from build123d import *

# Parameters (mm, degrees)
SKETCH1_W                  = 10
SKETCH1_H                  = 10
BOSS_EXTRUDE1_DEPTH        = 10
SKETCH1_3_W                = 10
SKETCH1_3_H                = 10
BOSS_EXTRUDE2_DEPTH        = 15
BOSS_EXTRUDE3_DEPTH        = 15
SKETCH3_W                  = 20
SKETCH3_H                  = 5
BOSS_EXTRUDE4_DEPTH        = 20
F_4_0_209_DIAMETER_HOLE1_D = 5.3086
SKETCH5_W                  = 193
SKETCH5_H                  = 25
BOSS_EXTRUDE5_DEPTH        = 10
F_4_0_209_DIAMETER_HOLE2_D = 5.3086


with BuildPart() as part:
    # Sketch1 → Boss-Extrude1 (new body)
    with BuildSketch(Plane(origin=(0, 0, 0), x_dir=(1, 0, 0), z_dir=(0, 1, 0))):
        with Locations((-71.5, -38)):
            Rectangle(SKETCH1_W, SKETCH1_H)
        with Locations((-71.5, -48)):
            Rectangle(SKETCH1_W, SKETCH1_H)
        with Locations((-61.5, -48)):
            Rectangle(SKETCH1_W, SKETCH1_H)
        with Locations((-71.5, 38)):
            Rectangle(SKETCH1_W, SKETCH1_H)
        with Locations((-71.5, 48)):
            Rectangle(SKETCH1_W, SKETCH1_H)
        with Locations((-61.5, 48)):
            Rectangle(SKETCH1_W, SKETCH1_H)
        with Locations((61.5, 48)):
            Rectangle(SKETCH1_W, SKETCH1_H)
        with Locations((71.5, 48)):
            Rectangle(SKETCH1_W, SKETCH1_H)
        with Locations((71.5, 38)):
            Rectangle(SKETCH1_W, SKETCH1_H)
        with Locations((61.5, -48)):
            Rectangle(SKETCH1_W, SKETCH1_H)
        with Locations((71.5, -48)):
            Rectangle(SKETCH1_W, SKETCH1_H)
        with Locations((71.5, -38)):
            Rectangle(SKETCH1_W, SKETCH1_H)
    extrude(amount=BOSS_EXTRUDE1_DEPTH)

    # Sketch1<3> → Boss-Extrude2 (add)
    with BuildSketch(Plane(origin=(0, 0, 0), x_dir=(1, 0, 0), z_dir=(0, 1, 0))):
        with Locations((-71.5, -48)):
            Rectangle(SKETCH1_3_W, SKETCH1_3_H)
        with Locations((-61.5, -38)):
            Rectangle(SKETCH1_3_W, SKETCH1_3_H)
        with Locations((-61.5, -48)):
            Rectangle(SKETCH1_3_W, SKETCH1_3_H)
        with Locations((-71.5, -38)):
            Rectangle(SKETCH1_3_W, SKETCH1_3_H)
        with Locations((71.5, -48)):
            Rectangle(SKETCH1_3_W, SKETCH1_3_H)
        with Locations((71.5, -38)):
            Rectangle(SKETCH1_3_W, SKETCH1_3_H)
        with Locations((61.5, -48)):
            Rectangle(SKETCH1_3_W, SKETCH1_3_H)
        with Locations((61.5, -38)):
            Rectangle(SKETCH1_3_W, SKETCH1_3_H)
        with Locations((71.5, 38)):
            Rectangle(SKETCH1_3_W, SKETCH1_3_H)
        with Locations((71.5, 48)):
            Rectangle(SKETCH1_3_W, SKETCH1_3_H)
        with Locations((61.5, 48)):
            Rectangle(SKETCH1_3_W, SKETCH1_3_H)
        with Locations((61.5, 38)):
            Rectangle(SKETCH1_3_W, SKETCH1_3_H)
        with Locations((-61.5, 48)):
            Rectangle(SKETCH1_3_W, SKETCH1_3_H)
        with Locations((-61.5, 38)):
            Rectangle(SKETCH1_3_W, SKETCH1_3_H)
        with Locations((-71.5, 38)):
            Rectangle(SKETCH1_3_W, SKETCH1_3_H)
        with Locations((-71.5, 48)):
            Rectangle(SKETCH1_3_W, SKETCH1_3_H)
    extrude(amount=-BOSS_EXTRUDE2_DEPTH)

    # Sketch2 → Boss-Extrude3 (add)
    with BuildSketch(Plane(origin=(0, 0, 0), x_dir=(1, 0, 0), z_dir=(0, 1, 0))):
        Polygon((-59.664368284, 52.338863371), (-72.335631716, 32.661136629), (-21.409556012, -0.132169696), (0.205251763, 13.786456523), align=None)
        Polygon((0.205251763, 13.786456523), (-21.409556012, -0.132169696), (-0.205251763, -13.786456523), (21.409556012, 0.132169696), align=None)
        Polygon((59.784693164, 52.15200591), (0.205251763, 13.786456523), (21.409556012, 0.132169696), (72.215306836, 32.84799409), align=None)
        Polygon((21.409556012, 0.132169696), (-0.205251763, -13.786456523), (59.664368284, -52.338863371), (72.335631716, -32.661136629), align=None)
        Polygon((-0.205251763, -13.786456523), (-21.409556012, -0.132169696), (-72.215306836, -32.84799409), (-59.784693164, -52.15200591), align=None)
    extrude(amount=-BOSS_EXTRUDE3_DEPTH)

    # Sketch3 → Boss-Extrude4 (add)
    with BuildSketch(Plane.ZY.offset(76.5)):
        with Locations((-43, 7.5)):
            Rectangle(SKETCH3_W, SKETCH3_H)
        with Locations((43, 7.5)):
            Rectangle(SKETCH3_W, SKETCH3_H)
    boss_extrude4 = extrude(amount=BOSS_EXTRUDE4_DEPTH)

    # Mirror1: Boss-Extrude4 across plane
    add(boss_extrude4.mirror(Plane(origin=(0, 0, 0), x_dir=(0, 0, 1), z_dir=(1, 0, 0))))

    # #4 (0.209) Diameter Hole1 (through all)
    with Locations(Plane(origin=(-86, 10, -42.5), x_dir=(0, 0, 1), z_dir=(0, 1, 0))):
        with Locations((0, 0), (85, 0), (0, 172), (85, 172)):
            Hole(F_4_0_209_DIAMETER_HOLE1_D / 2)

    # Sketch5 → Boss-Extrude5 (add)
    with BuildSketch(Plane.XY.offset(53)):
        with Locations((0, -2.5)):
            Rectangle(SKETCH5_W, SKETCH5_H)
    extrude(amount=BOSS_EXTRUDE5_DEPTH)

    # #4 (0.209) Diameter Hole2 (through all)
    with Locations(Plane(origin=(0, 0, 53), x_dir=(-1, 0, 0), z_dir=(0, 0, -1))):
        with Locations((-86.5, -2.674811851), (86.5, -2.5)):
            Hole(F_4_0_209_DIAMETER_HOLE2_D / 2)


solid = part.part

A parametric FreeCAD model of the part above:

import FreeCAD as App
import Part
import Sketcher
from FreeCAD import Vector

doc = App.newDocument("Part")
body = doc.addObject("PartDesign::Body", "Body")
body.AllowCompound = True

# Sketch on XZ plane
sketch1 = body.newObject("Sketcher::SketchObject", "Sketch")
sketch1.AttachmentSupport = (doc.getObject("XZ_Plane"), [""])
sketch1.MapMode = "FlatFace"
sketch1.addGeometry(Part.LineSegment(Vector(-76, 33, 0), Vector(-76, 53, 0)), False)
sketch1.addGeometry(Part.LineSegment(Vector(-76, 53, 0), Vector(-56, 53, 0)), False)
sketch1.addGeometry(Part.LineSegment(Vector(-56, 53, 0), Vector(-56, 43, 0)), False)
sketch1.addGeometry(Part.LineSegment(Vector(-56, 43, 0), Vector(-66, 43, 0)), False)
sketch1.addGeometry(Part.LineSegment(Vector(-66, 43, 0), Vector(-66, 33, 0)), False)
sketch1.addGeometry(Part.LineSegment(Vector(-66, 33, 0), Vector(-76, 33, 0)), False)
sketch1.addGeometry(Part.LineSegment(Vector(-76, -33, 0), Vector(-66, -33, 0)), False)
sketch1.addGeometry(Part.LineSegment(Vector(-66, -33, 0), Vector(-66, -43, 0)), False)
sketch1.addGeometry(Part.LineSegment(Vector(-66, -43, 0), Vector(-56, -43, 0)), False)
sketch1.addGeometry(Part.LineSegment(Vector(-56, -43, 0), Vector(-56, -53, 0)), False)
sketch1.addGeometry(Part.LineSegment(Vector(-56, -53, 0), Vector(-76, -53, 0)), False)
sketch1.addGeometry(Part.LineSegment(Vector(-76, -53, 0), Vector(-76, -33, 0)), False)
sketch1.addGeometry(Part.LineSegment(Vector(56, -53, 0), Vector(56, -43, 0)), False)
sketch1.addGeometry(Part.LineSegment(Vector(56, -43, 0), Vector(66, -43, 0)), False)
sketch1.addGeometry(Part.LineSegment(Vector(66, -43, 0), Vector(66, -33, 0)), False)
sketch1.addGeometry(Part.LineSegment(Vector(66, -33, 0), Vector(76, -33, 0)), False)
sketch1.addGeometry(Part.LineSegment(Vector(76, -33, 0), Vector(76, -53, 0)), False)
sketch1.addGeometry(Part.LineSegment(Vector(76, -53, 0), Vector(56, -53, 0)), False)
sketch1.addGeometry(Part.LineSegment(Vector(56, 43, 0), Vector(56, 53, 0)), False)
sketch1.addGeometry(Part.LineSegment(Vector(56, 53, 0), Vector(76, 53, 0)), False)
sketch1.addGeometry(Part.LineSegment(Vector(76, 53, 0), Vector(76, 33, 0)), False)
sketch1.addGeometry(Part.LineSegment(Vector(76, 33, 0), Vector(66, 33, 0)), False)
sketch1.addGeometry(Part.LineSegment(Vector(66, 33, 0), Vector(66, 43, 0)), False)
sketch1.addGeometry(Part.LineSegment(Vector(66, 43, 0), Vector(56, 43, 0)), False)
sketch1.addConstraint(Sketcher.Constraint("Coincident", 0, 2, 1, 1))
sketch1.addConstraint(Sketcher.Constraint("Coincident", 1, 2, 2, 1))
sketch1.addConstraint(Sketcher.Constraint("Coincident", 2, 2, 3, 1))
sketch1.addConstraint(Sketcher.Constraint("Coincident", 3, 2, 4, 1))
sketch1.addConstraint(Sketcher.Constraint("Coincident", 4, 2, 5, 1))
sketch1.addConstraint(Sketcher.Constraint("Coincident", 5, 2, 0, 1))
sketch1.addConstraint(Sketcher.Constraint("Coincident", 6, 2, 7, 1))
sketch1.addConstraint(Sketcher.Constraint("Coincident", 7, 2, 8, 1))
sketch1.addConstraint(Sketcher.Constraint("Coincident", 8, 2, 9, 1))
sketch1.addConstraint(Sketcher.Constraint("Coincident", 9, 2, 10, 1))
sketch1.addConstraint(Sketcher.Constraint("Coincident", 10, 2, 11, 1))
sketch1.addConstraint(Sketcher.Constraint("Coincident", 11, 2, 6, 1))
sketch1.addConstraint(Sketcher.Constraint("Coincident", 12, 2, 13, 1))
sketch1.addConstraint(Sketcher.Constraint("Coincident", 13, 2, 14, 1))
sketch1.addConstraint(Sketcher.Constraint("Coincident", 14, 2, 15, 1))
sketch1.addConstraint(Sketcher.Constraint("Coincident", 15, 2, 16, 1))
sketch1.addConstraint(Sketcher.Constraint("Coincident", 16, 2, 17, 1))
sketch1.addConstraint(Sketcher.Constraint("Coincident", 17, 2, 12, 1))
sketch1.addConstraint(Sketcher.Constraint("Coincident", 18, 2, 19, 1))
sketch1.addConstraint(Sketcher.Constraint("Coincident", 19, 2, 20, 1))
sketch1.addConstraint(Sketcher.Constraint("Coincident", 20, 2, 21, 1))
sketch1.addConstraint(Sketcher.Constraint("Coincident", 21, 2, 22, 1))
sketch1.addConstraint(Sketcher.Constraint("Coincident", 22, 2, 23, 1))
sketch1.addConstraint(Sketcher.Constraint("Coincident", 23, 2, 18, 1))
sketch1.addConstraint(Sketcher.Constraint("Vertical", 0))
sketch1.addConstraint(Sketcher.Constraint("Horizontal", 1))
sketch1.addConstraint(Sketcher.Constraint("Vertical", 2))
sketch1.addConstraint(Sketcher.Constraint("Horizontal", 3))
sketch1.addConstraint(Sketcher.Constraint("Vertical", 4))
sketch1.addConstraint(Sketcher.Constraint("Horizontal", 5))
sketch1.addConstraint(Sketcher.Constraint("Horizontal", 6))
sketch1.addConstraint(Sketcher.Constraint("Vertical", 7))
sketch1.addConstraint(Sketcher.Constraint("Horizontal", 8))
sketch1.addConstraint(Sketcher.Constraint("Vertical", 9))
sketch1.addConstraint(Sketcher.Constraint("Horizontal", 10))
sketch1.addConstraint(Sketcher.Constraint("Vertical", 11))
sketch1.addConstraint(Sketcher.Constraint("Vertical", 12))
sketch1.addConstraint(Sketcher.Constraint("Horizontal", 13))
sketch1.addConstraint(Sketcher.Constraint("Vertical", 14))
sketch1.addConstraint(Sketcher.Constraint("Horizontal", 15))
sketch1.addConstraint(Sketcher.Constraint("Vertical", 16))
sketch1.addConstraint(Sketcher.Constraint("Horizontal", 17))
sketch1.addConstraint(Sketcher.Constraint("Vertical", 18))
sketch1.addConstraint(Sketcher.Constraint("Horizontal", 19))
sketch1.addConstraint(Sketcher.Constraint("Vertical", 20))
sketch1.addConstraint(Sketcher.Constraint("Horizontal", 21))
sketch1.addConstraint(Sketcher.Constraint("Vertical", 22))
sketch1.addConstraint(Sketcher.Constraint("Horizontal", 23))
sketch1.addConstraint(Sketcher.Constraint("Symmetric", 2, 2, 12, 2, -1, 1))
sketch1.addConstraint(Sketcher.Constraint("Symmetric", 4, 2, 14, 2, -1, 1))
sketch1.addConstraint(Sketcher.Constraint("Symmetric", 0, 2, 16, 2, -1, 1))
sketch1.addConstraint(Sketcher.Constraint("Symmetric", 9, 2, 18, 2, -1, 1))
sketch1.addConstraint(Sketcher.Constraint("Symmetric", 11, 2, 20, 2, -1, 1))
sketch1.addConstraint(Sketcher.Constraint("Symmetric", 7, 2, 22, 2, -1, 1))
sketch1.addConstraint(Sketcher.Constraint("Symmetric", 8, 2, 12, 2, -2))
sketch1.addConstraint(Sketcher.Constraint("Symmetric", 6, 2, 14, 2, -2))
sketch1.addConstraint(Sketcher.Constraint("Symmetric", 10, 2, 16, 2, -2))
sketch1.addConstraint(Sketcher.Constraint("Equal", 3, 5))
sketch1.addConstraint(Sketcher.Constraint("Equal", 19, 0))
sketch1.addConstraint(Sketcher.Constraint("Equal", 23, 2))
sketch1.addConstraint(Sketcher.Constraint("DistanceX", 1, 1, 1, 2, 20.0))
sketch1.addConstraint(Sketcher.Constraint("DistanceY", -1, 1, 0, 2, 53.0))
sketch1.addConstraint(Sketcher.Constraint("DistanceX", 8, 2, 12, 2, 113.0))
pad1 = body.newObject("PartDesign::Pad", "Pad")
pad1.Profile = sketch1
pad1.Length = 10
pad1.Reversed = True

# Sketch on XZ plane
sketch2 = body.newObject("Sketcher::SketchObject", "Sketch001")
sketch2.AttachmentSupport = (doc.getObject("XZ_Plane"), [""])
sketch2.MapMode = "FlatFace"
sketch2.addGeometry(Part.LineSegment(Vector(-76, 53, 0), Vector(-56, 53, 0)), False)
sketch2.addGeometry(Part.LineSegment(Vector(-56, 53, 0), Vector(-56, 33, 0)), False)
sketch2.addGeometry(Part.LineSegment(Vector(-56, 33, 0), Vector(-76, 33, 0)), False)
sketch2.addGeometry(Part.LineSegment(Vector(-76, 33, 0), Vector(-76, 53, 0)), False)
sketch2.addGeometry(Part.LineSegment(Vector(76, 53, 0), Vector(76, 33, 0)), False)
sketch2.addGeometry(Part.LineSegment(Vector(76, 33, 0), Vector(56, 33, 0)), False)
sketch2.addGeometry(Part.LineSegment(Vector(56, 33, 0), Vector(56, 53, 0)), False)
sketch2.addGeometry(Part.LineSegment(Vector(56, 53, 0), Vector(76, 53, 0)), False)
sketch2.addGeometry(Part.LineSegment(Vector(76, -33, 0), Vector(76, -53, 0)), False)
sketch2.addGeometry(Part.LineSegment(Vector(76, -53, 0), Vector(56, -53, 0)), False)
sketch2.addGeometry(Part.LineSegment(Vector(56, -53, 0), Vector(56, -33, 0)), False)
sketch2.addGeometry(Part.LineSegment(Vector(56, -33, 0), Vector(76, -33, 0)), False)
sketch2.addGeometry(Part.LineSegment(Vector(-76, -33, 0), Vector(-56, -33, 0)), False)
sketch2.addGeometry(Part.LineSegment(Vector(-56, -33, 0), Vector(-56, -53, 0)), False)
sketch2.addGeometry(Part.LineSegment(Vector(-56, -53, 0), Vector(-76, -53, 0)), False)
sketch2.addGeometry(Part.LineSegment(Vector(-76, -53, 0), Vector(-76, -33, 0)), False)
sketch2.addConstraint(Sketcher.Constraint("Coincident", 0, 2, 1, 1))
sketch2.addConstraint(Sketcher.Constraint("Coincident", 1, 2, 2, 1))
sketch2.addConstraint(Sketcher.Constraint("Coincident", 2, 2, 3, 1))
sketch2.addConstraint(Sketcher.Constraint("Coincident", 3, 2, 0, 1))
sketch2.addConstraint(Sketcher.Constraint("Coincident", 4, 2, 5, 1))
sketch2.addConstraint(Sketcher.Constraint("Coincident", 5, 2, 6, 1))
sketch2.addConstraint(Sketcher.Constraint("Coincident", 6, 2, 7, 1))
sketch2.addConstraint(Sketcher.Constraint("Coincident", 7, 2, 4, 1))
sketch2.addConstraint(Sketcher.Constraint("Coincident", 8, 2, 9, 1))
sketch2.addConstraint(Sketcher.Constraint("Coincident", 9, 2, 10, 1))
sketch2.addConstraint(Sketcher.Constraint("Coincident", 10, 2, 11, 1))
sketch2.addConstraint(Sketcher.Constraint("Coincident", 11, 2, 8, 1))
sketch2.addConstraint(Sketcher.Constraint("Coincident", 12, 2, 13, 1))
sketch2.addConstraint(Sketcher.Constraint("Coincident", 13, 2, 14, 1))
sketch2.addConstraint(Sketcher.Constraint("Coincident", 14, 2, 15, 1))
sketch2.addConstraint(Sketcher.Constraint("Coincident", 15, 2, 12, 1))
sketch2.addConstraint(Sketcher.Constraint("Horizontal", 0))
sketch2.addConstraint(Sketcher.Constraint("Vertical", 1))
sketch2.addConstraint(Sketcher.Constraint("Horizontal", 2))
sketch2.addConstraint(Sketcher.Constraint("Vertical", 3))
sketch2.addConstraint(Sketcher.Constraint("Vertical", 4))
sketch2.addConstraint(Sketcher.Constraint("Horizontal", 5))
sketch2.addConstraint(Sketcher.Constraint("Vertical", 6))
sketch2.addConstraint(Sketcher.Constraint("Horizontal", 7))
sketch2.addConstraint(Sketcher.Constraint("Vertical", 8))
sketch2.addConstraint(Sketcher.Constraint("Horizontal", 9))
sketch2.addConstraint(Sketcher.Constraint("Vertical", 10))
sketch2.addConstraint(Sketcher.Constraint("Horizontal", 11))
sketch2.addConstraint(Sketcher.Constraint("Horizontal", 12))
sketch2.addConstraint(Sketcher.Constraint("Vertical", 13))
sketch2.addConstraint(Sketcher.Constraint("Horizontal", 14))
sketch2.addConstraint(Sketcher.Constraint("Vertical", 15))
sketch2.addConstraint(Sketcher.Constraint("Symmetric", 3, 2, 8, 2, -1, 1))
sketch2.addConstraint(Sketcher.Constraint("Symmetric", 1, 2, 10, 2, -1, 1))
sketch2.addConstraint(Sketcher.Constraint("Symmetric", 5, 2, 12, 2, -1, 1))
sketch2.addConstraint(Sketcher.Constraint("Symmetric", 7, 2, 14, 2, -1, 1))
sketch2.addConstraint(Sketcher.Constraint("Symmetric", 2, 2, 4, 2, -2))
sketch2.addConstraint(Sketcher.Constraint("Symmetric", 0, 2, 6, 2, -2))
sketch2.addConstraint(Sketcher.Constraint("Equal", 14, 1))
sketch2.addConstraint(Sketcher.Constraint("DistanceX", 0, 1, 0, 2, 20.0))
sketch2.addConstraint(Sketcher.Constraint("DistanceY", -1, 1, 0, 2, 53.0))
sketch2.addConstraint(Sketcher.Constraint("DistanceX", 1, 2, 4, 2, 133.0))
pad2 = body.newObject("PartDesign::Pad", "Pad001")
pad2.Profile = sketch2
pad2.Length = 15

# Sketch on XZ plane
sketch3 = body.newObject("Sketcher::SketchObject", "Sketch002")
sketch3.AttachmentSupport = (doc.getObject("XZ_Plane"), [""])
sketch3.MapMode = "FlatFace"
sketch3.addGeometry(Part.LineSegment(Vector(-60, -52, 0), Vector(-72, -33, 0)), False)
sketch3.addGeometry(Part.LineSegment(Vector(-72, -33, 0), Vector(-21, 0, 0)), False)
sketch3.addGeometry(Part.LineSegment(Vector(-21, 0, 0), Vector(-72, 33, 0)), False)
sketch3.addGeometry(Part.LineSegment(Vector(-72, 33, 0), Vector(-60, 52, 0)), False)
sketch3.addGeometry(Part.LineSegment(Vector(-60, 52, 0), Vector(0, 14, 0)), False)
sketch3.addGeometry(Part.LineSegment(Vector(0, 14, 0), Vector(60, 52, 0)), False)
sketch3.addGeometry(Part.LineSegment(Vector(60, 52, 0), Vector(72, 33, 0)), False)
sketch3.addGeometry(Part.LineSegment(Vector(72, 33, 0), Vector(21, 0, 0)), False)
sketch3.addGeometry(Part.LineSegment(Vector(21, 0, 0), Vector(72, -33, 0)), False)
sketch3.addGeometry(Part.LineSegment(Vector(72, -33, 0), Vector(60, -52, 0)), False)
sketch3.addGeometry(Part.LineSegment(Vector(60, -52, 0), Vector(0, -14, 0)), False)
sketch3.addGeometry(Part.LineSegment(Vector(0, -14, 0), Vector(-60, -52, 0)), False)
sketch3.addConstraint(Sketcher.Constraint("Coincident", 0, 2, 1, 1))
sketch3.addConstraint(Sketcher.Constraint("Coincident", 1, 2, 2, 1))
sketch3.addConstraint(Sketcher.Constraint("Coincident", 2, 2, 3, 1))
sketch3.addConstraint(Sketcher.Constraint("Coincident", 3, 2, 4, 1))
sketch3.addConstraint(Sketcher.Constraint("Coincident", 4, 2, 5, 1))
sketch3.addConstraint(Sketcher.Constraint("Coincident", 5, 2, 6, 1))
sketch3.addConstraint(Sketcher.Constraint("Coincident", 6, 2, 7, 1))
sketch3.addConstraint(Sketcher.Constraint("Coincident", 7, 2, 8, 1))
sketch3.addConstraint(Sketcher.Constraint("Coincident", 8, 2, 9, 1))
sketch3.addConstraint(Sketcher.Constraint("Coincident", 9, 2, 10, 1))
sketch3.addConstraint(Sketcher.Constraint("Coincident", 10, 2, 11, 1))
sketch3.addConstraint(Sketcher.Constraint("Coincident", 11, 2, 0, 1))
sketch3.addConstraint(Sketcher.Constraint("Symmetric", 0, 2, 6, 2, -1, 1))
sketch3.addConstraint(Sketcher.Constraint("Symmetric", 1, 2, 7, 2, -1, 1))
sketch3.addConstraint(Sketcher.Constraint("Symmetric", 2, 2, 8, 2, -1, 1))
sketch3.addConstraint(Sketcher.Constraint("Symmetric", 3, 2, 9, 2, -1, 1))
sketch3.addConstraint(Sketcher.Constraint("Symmetric", 4, 2, 10, 2, -1, 1))
sketch3.addConstraint(Sketcher.Constraint("Symmetric", 5, 2, 11, 2, -1, 1))
sketch3.addConstraint(Sketcher.Constraint("Perpendicular", 0, 1))
sketch3.addConstraint(Sketcher.Constraint("Perpendicular", 2, 3))
sketch3.addConstraint(Sketcher.Constraint("Perpendicular", 3, 4))
sketch3.addConstraint(Sketcher.Constraint("Parallel", 1, 5))
sketch3.addConstraint(Sketcher.Constraint("DistanceX", 0, 2, 5, 2, 132.0))
sketch3.addConstraint(Sketcher.Constraint("DistanceY", 0, 2, 5, 2, 85.0))
sketch3.addConstraint(Sketcher.Constraint("Distance", 0, 23.404569))
sketch3.addConstraint(Sketcher.Constraint("DistanceX", 0, 2, -1, 1, 72.335632))
sketch3.addConstraint(Sketcher.Constraint("DistanceY", -1, 1, 1, 2, 0.13217))
sketch3.addConstraint(Sketcher.Constraint("DistanceX", 4, 2, -1, 1, 0.205252))
sketch3.addConstraint(Sketcher.Constraint("DistanceX", 2, 2, 1, 2, 50.805751))
sketch3.addConstraint(Sketcher.Constraint("DistanceY", 0, 2, 2, 2, 65.509131))
pad3 = body.newObject("PartDesign::Pad", "Pad002")
pad3.Profile = sketch3
pad3.Length = 15

# Sketch on YZ plane
sketch4 = body.newObject("Sketcher::SketchObject", "Sketch003")
sketch4.AttachmentSupport = (doc.getObject("YZ_Plane"), [""])
sketch4.MapMode = "FlatFace"
sketch4.AttachmentOffset = App.Placement(Vector(0, 0, -76.5), App.Rotation())
sketch4.addGeometry(Part.LineSegment(Vector(10, -53, 0), Vector(5, -53, 0)), False)
sketch4.addGeometry(Part.LineSegment(Vector(5, -53, 0), Vector(5, -33, 0)), False)
sketch4.addGeometry(Part.LineSegment(Vector(5, -33, 0), Vector(10, -33, 0)), False)
sketch4.addGeometry(Part.LineSegment(Vector(10, -33, 0), Vector(10, -53, 0)), False)
sketch4.addGeometry(Part.LineSegment(Vector(10, 33, 0), Vector(5, 33, 0)), False)
sketch4.addGeometry(Part.LineSegment(Vector(5, 33, 0), Vector(5, 53, 0)), False)
sketch4.addGeometry(Part.LineSegment(Vector(5, 53, 0), Vector(10, 53, 0)), False)
sketch4.addGeometry(Part.LineSegment(Vector(10, 53, 0), Vector(10, 33, 0)), False)
sketch4.addConstraint(Sketcher.Constraint("Coincident", 0, 2, 1, 1))
sketch4.addConstraint(Sketcher.Constraint("Coincident", 1, 2, 2, 1))
sketch4.addConstraint(Sketcher.Constraint("Coincident", 2, 2, 3, 1))
sketch4.addConstraint(Sketcher.Constraint("Coincident", 3, 2, 0, 1))
sketch4.addConstraint(Sketcher.Constraint("Coincident", 4, 2, 5, 1))
sketch4.addConstraint(Sketcher.Constraint("Coincident", 5, 2, 6, 1))
sketch4.addConstraint(Sketcher.Constraint("Coincident", 6, 2, 7, 1))
sketch4.addConstraint(Sketcher.Constraint("Coincident", 7, 2, 4, 1))
sketch4.addConstraint(Sketcher.Constraint("Horizontal", 0))
sketch4.addConstraint(Sketcher.Constraint("Vertical", 1))
sketch4.addConstraint(Sketcher.Constraint("Horizontal", 2))
sketch4.addConstraint(Sketcher.Constraint("Vertical", 3))
sketch4.addConstraint(Sketcher.Constraint("Horizontal", 4))
sketch4.addConstraint(Sketcher.Constraint("Vertical", 5))
sketch4.addConstraint(Sketcher.Constraint("Horizontal", 6))
sketch4.addConstraint(Sketcher.Constraint("Vertical", 7))
sketch4.addConstraint(Sketcher.Constraint("Symmetric", 1, 2, 4, 2, -1))
sketch4.addConstraint(Sketcher.Constraint("Symmetric", 3, 2, 6, 2, -1))
sketch4.addConstraint(Sketcher.Constraint("DistanceX", 0, 2, 0, 1, 5.0))
sketch4.addConstraint(Sketcher.Constraint("DistanceY", 1, 1, 1, 2, 20.0))
sketch4.addConstraint(Sketcher.Constraint("DistanceX", -1, 1, 0, 2, 5.0))
sketch4.addConstraint(Sketcher.Constraint("DistanceY", 0, 2, -1, 1, 53.0))
pad4 = body.newObject("PartDesign::Pad", "Pad003")
pad4.Profile = sketch4
pad4.Length = 20
pad4.Reversed = True
doc.recompute()

mirrored = body.newObject("PartDesign::Mirrored", "Mirrored")
mirrored.Originals = [pad4]
mirrored.MirrorPlane = (doc.getObject("YZ_Plane"), [""])
body.Tip = mirrored

# Sketch on XZ plane
sketch5 = body.newObject("Sketcher::SketchObject", "Sketch004")
sketch5.AttachmentSupport = (doc.getObject("XZ_Plane"), [""])
sketch5.MapMode = "FlatFace"
sketch5.AttachmentOffset = App.Placement(Vector(0, 0, -10), App.Rotation())
sketch5.addGeometry(Part.Circle(Vector(-86, -42.5, 0), Vector(0, 0, 1), 2.7), False)
sketch5.addGeometry(Part.Circle(Vector(-86, 42.5, 0), Vector(0, 0, 1), 2.7), False)
sketch5.addGeometry(Part.Circle(Vector(86, -42.5, 0), Vector(0, 0, 1), 2.7), False)
sketch5.addGeometry(Part.Circle(Vector(86, 42.5, 0), Vector(0, 0, 1), 2.7), False)
sketch5.addConstraint(Sketcher.Constraint("Equal", 0, 1))
sketch5.addConstraint(Sketcher.Constraint("Equal", 1, 2))
sketch5.addConstraint(Sketcher.Constraint("Equal", 2, 3))
sketch5.addConstraint(Sketcher.Constraint("Symmetric", 1, 3, 2, 3, -1, 1))
sketch5.addConstraint(Sketcher.Constraint("Symmetric", 0, 3, 3, 3, -1, 1))
sketch5.addConstraint(Sketcher.Constraint("Symmetric", 0, 3, 2, 3, -2))
sketch5.addConstraint(Sketcher.Constraint("DistanceX", 0, 3, -1, 1, 86.0))
sketch5.addConstraint(Sketcher.Constraint("DistanceY", 0, 3, 1, 3, 85.0))
sketch5.addConstraint(Sketcher.Constraint("Diameter", 0, 5.3086))
doc.recompute()
hole = body.newObject("PartDesign::Hole", "Hole")
hole.Profile = sketch5
hole.ThreadType = "None"
hole.Diameter = 5.3086
hole.DepthType = "ThroughAll"
hole.Reversed = True

# Sketch on XY plane
sketch6 = body.newObject("Sketcher::SketchObject", "Sketch005")
sketch6.AttachmentSupport = (doc.getObject("XY_Plane"), [""])
sketch6.MapMode = "FlatFace"
sketch6.AttachmentOffset = App.Placement(Vector(0, 0, 53), App.Rotation())
sketch6.addGeometry(Part.LineSegment(Vector(-96, 10, 0), Vector(-96, -15, 0)), False)
sketch6.addGeometry(Part.LineSegment(Vector(-96, -15, 0), Vector(96, -15, 0)), False)
sketch6.addGeometry(Part.LineSegment(Vector(96, -15, 0), Vector(96, 10, 0)), False)
sketch6.addGeometry(Part.LineSegment(Vector(96, 10, 0), Vector(-96, 10, 0)), False)
sketch6.addConstraint(Sketcher.Constraint("Coincident", 0, 2, 1, 1))
sketch6.addConstraint(Sketcher.Constraint("Coincident", 1, 2, 2, 1))
sketch6.addConstraint(Sketcher.Constraint("Coincident", 2, 2, 3, 1))
sketch6.addConstraint(Sketcher.Constraint("Coincident", 3, 2, 0, 1))
sketch6.addConstraint(Sketcher.Constraint("Vertical", 0))
sketch6.addConstraint(Sketcher.Constraint("Horizontal", 1))
sketch6.addConstraint(Sketcher.Constraint("Vertical", 2))
sketch6.addConstraint(Sketcher.Constraint("Horizontal", 3))
sketch6.addConstraint(Sketcher.Constraint("DistanceX", 1, 1, 1, 2, 193.0))
sketch6.addConstraint(Sketcher.Constraint("DistanceY", 0, 2, 0, 1, 25.0))
sketch6.addConstraint(Sketcher.Constraint("DistanceY", 0, 2, -1, 1, 15.0))
sketch6.addConstraint(Sketcher.Constraint("DistanceX", 0, 2, -1, 1, 96.5))
pad5 = body.newObject("PartDesign::Pad", "Pad004")
pad5.Profile = sketch6
pad5.Length = 10

# Sketch on XY plane
sketch7 = body.newObject("Sketcher::SketchObject", "Sketch006")
sketch7.AttachmentSupport = (doc.getObject("XY_Plane"), [""])
sketch7.MapMode = "FlatFace"
sketch7.AttachmentOffset = App.Placement(Vector(0, 0, 53), App.Rotation())
sketch7.addGeometry(Part.Circle(Vector(86.5, -2.7, 0), Vector(0, 0, 1), 2.7), False)
sketch7.addGeometry(Part.Circle(Vector(-86.5, -2.5, 0), Vector(0, 0, 1), 2.7), False)
sketch7.addConstraint(Sketcher.Constraint("Equal", 0, 1))
sketch7.addConstraint(Sketcher.Constraint("DistanceX", 1, 3, 0, 3, 173.0))
sketch7.addConstraint(Sketcher.Constraint("Diameter", 0, 5.3086))
sketch7.addConstraint(Sketcher.Constraint("DistanceX", -1, 1, 0, 3, 86.5))
sketch7.addConstraint(Sketcher.Constraint("DistanceY", 1, 3, -1, 1, 2.5))
sketch7.addConstraint(Sketcher.Constraint("DistanceY", 0, 3, -1, 1, 2.674812))
doc.recompute()
hole2 = body.newObject("PartDesign::Hole", "Hole001")
hole2.Profile = sketch7
hole2.ThreadType = "None"
hole2.Diameter = 5.3086
hole2.DepthType = "ThroughAll"
hole2.Reversed = True

doc.recompute()
